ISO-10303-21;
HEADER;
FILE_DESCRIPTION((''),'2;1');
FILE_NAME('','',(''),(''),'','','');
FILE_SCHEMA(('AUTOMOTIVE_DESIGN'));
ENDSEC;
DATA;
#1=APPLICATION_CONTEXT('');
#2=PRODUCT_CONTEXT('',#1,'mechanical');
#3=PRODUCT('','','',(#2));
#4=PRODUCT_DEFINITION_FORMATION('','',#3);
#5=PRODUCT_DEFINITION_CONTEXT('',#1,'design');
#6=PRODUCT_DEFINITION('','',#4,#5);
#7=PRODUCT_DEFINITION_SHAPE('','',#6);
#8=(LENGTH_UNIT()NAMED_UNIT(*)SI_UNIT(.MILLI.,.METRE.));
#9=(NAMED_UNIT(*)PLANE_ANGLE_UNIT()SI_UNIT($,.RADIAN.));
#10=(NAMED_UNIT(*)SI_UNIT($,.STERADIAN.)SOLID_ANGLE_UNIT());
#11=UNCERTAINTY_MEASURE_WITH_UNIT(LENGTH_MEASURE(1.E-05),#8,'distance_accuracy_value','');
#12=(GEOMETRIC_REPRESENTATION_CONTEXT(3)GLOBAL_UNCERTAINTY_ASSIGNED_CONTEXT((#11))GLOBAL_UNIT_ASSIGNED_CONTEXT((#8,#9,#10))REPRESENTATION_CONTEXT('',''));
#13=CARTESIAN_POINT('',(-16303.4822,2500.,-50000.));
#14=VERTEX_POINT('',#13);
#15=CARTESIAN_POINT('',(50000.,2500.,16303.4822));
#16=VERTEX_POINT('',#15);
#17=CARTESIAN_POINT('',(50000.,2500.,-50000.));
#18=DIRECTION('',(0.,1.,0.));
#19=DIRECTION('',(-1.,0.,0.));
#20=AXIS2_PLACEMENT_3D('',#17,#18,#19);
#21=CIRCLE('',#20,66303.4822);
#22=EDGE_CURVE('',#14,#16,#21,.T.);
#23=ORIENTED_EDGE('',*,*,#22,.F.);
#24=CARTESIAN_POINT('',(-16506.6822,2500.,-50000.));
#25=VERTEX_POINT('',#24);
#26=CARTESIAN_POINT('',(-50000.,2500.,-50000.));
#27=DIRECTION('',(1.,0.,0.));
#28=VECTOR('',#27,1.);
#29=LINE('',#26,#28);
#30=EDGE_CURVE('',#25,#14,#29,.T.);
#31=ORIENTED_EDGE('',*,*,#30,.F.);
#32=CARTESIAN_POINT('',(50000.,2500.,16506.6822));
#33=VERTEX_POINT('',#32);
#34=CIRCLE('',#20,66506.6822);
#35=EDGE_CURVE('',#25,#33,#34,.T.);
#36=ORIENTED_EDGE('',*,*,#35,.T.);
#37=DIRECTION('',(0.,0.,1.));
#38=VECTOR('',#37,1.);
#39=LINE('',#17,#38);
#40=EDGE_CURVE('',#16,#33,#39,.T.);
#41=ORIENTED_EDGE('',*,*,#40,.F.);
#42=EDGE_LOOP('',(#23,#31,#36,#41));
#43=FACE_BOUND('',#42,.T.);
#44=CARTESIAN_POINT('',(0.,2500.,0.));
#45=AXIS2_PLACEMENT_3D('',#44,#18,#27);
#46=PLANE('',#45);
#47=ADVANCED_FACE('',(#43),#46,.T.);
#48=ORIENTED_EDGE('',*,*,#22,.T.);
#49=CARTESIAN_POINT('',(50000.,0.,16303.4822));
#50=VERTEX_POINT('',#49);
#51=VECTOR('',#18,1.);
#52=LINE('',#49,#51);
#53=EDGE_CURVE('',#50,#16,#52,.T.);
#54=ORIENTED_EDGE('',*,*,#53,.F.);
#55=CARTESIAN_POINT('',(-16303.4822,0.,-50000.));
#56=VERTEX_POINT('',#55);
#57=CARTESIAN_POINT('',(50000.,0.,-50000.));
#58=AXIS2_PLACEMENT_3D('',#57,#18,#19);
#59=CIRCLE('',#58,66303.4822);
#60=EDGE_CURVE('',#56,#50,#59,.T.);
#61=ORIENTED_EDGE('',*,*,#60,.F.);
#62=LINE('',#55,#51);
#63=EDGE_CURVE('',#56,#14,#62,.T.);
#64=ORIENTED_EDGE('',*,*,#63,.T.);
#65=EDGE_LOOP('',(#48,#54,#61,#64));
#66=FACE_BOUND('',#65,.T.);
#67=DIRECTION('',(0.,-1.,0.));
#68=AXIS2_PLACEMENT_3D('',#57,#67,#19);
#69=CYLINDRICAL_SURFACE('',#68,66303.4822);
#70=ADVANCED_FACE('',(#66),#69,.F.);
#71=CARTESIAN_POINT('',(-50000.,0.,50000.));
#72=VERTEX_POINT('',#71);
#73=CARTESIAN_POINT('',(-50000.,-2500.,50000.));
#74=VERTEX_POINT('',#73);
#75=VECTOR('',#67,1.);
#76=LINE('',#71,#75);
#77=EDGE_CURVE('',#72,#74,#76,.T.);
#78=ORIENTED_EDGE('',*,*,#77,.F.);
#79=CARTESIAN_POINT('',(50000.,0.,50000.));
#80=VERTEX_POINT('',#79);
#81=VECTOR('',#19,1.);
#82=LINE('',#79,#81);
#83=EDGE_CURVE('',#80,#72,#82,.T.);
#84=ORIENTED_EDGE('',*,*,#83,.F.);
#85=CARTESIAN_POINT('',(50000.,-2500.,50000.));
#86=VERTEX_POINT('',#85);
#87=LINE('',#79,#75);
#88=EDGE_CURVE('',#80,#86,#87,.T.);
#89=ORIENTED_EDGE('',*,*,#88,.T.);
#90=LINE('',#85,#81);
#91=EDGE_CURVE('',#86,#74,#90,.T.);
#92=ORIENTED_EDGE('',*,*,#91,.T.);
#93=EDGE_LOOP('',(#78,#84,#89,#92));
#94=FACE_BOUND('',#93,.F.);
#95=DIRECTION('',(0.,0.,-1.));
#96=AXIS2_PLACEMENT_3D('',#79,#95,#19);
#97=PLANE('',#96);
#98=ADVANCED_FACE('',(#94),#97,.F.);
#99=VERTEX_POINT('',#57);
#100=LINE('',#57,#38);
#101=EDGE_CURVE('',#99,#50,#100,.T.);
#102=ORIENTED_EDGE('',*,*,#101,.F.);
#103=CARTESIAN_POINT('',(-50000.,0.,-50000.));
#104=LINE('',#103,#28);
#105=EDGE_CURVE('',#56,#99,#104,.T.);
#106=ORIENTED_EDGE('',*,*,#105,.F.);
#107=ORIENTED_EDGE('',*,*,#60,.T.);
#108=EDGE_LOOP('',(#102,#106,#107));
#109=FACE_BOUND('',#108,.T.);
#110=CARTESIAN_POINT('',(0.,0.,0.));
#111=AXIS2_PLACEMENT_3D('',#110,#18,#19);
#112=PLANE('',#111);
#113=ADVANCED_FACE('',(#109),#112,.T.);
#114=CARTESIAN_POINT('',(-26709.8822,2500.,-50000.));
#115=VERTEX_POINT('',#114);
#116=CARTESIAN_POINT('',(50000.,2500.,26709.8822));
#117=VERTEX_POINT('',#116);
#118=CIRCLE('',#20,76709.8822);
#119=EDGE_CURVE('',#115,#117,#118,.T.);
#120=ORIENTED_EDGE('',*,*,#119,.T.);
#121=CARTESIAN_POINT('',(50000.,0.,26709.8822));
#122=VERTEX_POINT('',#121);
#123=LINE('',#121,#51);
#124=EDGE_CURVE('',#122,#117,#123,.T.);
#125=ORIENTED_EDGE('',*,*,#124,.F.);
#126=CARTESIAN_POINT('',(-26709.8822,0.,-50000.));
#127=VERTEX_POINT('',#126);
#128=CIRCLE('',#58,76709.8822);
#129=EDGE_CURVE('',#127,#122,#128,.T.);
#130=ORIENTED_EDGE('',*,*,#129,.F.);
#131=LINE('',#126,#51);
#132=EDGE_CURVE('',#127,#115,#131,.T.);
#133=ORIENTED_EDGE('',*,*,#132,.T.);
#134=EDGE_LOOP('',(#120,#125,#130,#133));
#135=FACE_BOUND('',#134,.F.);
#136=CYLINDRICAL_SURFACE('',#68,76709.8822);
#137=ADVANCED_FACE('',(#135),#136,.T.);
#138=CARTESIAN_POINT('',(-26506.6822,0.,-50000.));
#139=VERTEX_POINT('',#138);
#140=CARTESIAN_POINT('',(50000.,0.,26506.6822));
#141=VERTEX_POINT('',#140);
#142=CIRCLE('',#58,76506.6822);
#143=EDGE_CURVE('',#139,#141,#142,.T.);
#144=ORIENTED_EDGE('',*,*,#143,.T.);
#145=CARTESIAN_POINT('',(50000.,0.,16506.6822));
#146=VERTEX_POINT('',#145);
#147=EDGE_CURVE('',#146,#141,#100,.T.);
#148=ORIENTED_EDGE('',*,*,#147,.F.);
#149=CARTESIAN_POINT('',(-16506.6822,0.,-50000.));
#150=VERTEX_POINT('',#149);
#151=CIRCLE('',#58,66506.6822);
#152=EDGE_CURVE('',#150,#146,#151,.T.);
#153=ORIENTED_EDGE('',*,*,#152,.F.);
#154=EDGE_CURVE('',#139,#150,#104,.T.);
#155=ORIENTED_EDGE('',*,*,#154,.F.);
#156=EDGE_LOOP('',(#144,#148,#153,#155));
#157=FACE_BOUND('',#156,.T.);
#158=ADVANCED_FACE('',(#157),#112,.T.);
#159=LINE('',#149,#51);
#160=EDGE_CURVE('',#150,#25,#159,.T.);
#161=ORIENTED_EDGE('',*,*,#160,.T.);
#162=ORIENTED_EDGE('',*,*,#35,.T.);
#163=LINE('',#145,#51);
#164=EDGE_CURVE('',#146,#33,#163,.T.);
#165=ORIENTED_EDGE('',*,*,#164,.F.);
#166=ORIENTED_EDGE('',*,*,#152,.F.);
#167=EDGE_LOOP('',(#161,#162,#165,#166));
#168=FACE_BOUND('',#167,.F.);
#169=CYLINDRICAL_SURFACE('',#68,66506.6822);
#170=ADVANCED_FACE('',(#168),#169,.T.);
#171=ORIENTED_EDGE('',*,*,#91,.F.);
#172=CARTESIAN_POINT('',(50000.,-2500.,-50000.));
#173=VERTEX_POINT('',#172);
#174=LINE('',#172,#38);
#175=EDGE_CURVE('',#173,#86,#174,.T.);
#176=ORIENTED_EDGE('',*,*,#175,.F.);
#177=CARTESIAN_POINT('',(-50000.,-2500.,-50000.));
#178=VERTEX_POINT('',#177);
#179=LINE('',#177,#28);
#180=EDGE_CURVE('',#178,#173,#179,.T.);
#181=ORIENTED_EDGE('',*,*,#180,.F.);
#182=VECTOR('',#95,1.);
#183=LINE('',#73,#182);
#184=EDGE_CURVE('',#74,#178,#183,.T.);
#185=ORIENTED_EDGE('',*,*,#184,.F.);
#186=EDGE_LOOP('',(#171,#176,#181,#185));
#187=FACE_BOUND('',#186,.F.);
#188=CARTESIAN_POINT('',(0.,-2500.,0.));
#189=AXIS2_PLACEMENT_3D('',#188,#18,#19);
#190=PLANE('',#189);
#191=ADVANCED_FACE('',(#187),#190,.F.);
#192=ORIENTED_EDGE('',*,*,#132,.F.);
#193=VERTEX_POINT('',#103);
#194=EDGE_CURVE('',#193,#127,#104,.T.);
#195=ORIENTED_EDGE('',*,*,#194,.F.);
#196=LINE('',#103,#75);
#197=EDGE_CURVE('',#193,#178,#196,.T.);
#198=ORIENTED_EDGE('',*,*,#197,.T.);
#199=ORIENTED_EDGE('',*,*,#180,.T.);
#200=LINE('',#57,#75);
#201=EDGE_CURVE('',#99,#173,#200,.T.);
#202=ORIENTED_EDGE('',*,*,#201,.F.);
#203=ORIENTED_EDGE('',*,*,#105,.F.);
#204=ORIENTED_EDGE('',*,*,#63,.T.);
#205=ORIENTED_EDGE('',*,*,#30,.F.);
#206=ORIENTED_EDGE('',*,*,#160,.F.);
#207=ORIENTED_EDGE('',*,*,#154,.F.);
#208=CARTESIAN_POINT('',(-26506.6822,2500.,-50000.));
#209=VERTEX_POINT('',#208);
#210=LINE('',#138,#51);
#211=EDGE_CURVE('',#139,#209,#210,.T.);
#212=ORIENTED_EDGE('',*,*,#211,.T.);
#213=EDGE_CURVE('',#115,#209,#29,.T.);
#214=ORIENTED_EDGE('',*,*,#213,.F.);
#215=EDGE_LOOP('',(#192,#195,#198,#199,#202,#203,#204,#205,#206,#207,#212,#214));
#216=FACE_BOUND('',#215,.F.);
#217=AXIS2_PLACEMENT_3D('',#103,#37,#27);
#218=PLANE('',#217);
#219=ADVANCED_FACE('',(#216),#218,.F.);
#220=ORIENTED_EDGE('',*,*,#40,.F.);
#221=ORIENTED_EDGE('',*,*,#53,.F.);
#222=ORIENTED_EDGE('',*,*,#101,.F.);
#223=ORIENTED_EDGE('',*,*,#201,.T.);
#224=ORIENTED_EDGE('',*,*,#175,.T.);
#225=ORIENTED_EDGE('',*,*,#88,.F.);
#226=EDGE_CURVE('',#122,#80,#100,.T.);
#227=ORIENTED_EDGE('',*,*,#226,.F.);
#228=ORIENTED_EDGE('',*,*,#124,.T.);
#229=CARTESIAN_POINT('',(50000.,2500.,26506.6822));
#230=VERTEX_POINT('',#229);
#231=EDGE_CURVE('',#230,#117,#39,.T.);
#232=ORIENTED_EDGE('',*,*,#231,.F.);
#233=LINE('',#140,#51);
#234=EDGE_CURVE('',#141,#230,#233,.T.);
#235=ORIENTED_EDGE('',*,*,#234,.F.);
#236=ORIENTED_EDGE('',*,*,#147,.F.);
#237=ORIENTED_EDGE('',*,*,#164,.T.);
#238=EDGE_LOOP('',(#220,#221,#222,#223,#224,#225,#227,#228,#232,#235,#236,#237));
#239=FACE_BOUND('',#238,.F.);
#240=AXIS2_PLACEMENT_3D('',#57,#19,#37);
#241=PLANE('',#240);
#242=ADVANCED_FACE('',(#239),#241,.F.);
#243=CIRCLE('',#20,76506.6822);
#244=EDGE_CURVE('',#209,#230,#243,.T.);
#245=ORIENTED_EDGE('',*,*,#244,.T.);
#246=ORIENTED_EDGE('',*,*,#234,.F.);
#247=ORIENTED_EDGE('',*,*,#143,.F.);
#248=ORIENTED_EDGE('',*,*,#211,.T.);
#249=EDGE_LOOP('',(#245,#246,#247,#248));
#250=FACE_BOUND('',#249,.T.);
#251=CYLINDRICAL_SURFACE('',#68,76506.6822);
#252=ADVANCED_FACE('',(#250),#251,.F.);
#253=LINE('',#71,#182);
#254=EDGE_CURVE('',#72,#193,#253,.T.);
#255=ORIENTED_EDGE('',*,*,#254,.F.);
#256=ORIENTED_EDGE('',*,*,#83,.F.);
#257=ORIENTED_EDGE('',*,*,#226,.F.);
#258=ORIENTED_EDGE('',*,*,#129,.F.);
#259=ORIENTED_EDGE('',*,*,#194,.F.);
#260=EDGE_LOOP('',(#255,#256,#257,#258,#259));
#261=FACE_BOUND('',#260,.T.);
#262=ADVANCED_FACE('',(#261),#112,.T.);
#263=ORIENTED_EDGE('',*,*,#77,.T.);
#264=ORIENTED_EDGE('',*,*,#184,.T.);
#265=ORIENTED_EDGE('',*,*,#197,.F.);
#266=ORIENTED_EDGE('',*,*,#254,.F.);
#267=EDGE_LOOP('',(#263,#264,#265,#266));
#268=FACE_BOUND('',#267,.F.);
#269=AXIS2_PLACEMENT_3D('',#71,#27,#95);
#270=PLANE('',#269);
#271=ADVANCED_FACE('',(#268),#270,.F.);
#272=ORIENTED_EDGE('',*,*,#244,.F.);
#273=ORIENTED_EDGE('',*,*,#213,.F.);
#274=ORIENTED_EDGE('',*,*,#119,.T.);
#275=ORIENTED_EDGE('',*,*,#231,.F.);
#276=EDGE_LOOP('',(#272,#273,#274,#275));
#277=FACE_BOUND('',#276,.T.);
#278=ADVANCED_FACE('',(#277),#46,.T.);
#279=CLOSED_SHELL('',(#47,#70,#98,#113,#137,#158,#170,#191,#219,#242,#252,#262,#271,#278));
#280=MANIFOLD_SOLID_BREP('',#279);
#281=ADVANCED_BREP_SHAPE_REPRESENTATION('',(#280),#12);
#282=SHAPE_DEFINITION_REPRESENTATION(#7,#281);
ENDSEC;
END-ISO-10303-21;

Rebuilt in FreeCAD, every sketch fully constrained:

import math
import FreeCAD as App
import Part
import Sketcher
Q = App.Units.Quantity


def add_polygon(sketch, points):
    """Adds a closed chain of lines whose ends are joined by coincident constraints."""
    first, n = sketch.GeometryCount, len(points)
    for a, b in zip(points, points[1:] + points[:1]):
        sketch.addGeometry(Part.LineSegment(App.Vector(*a, 0), App.Vector(*b, 0)), False)
    for i in range(n):
        sketch.addConstraint(Sketcher.Constraint("Coincident", first + i, 2, first + (i + 1) % n, 1))

doc = App.newDocument("Part")
body = doc.addObject("PartDesign::Body", "Body")

# Sketch on XZ plane
sketch1 = body.newObject("Sketcher::SketchObject", "Sketch")
sketch1.AttachmentSupport = (doc.getObject("XZ_Plane"), [""])
sketch1.MapMode = "FlatFace"
add_polygon(sketch1, [(-50000, 50000), (50000, 50000), (50000, -50000), (-50000, -50000)])  # lines 0-3
sketch1.addConstraint([
    Sketcher.Constraint("Horizontal", 0),
    Sketcher.Constraint("Vertical", 1),
    Sketcher.Constraint("Horizontal", 2),
    Sketcher.Constraint("Vertical", 3),
    Sketcher.Constraint("Symmetric", 0, 2, 2, 2, -1, 1),
    Sketcher.Constraint("Equal", 2, 1),
    Sketcher.Constraint("DistanceX", 0, 1, 0, 2, Q("100000 mm")),
])
pad1 = body.newObject("PartDesign::Pad", "Pad")
pad1.Profile = sketch1
pad1.Length = 2500

# Sketch on XZ plane
sketch2 = body.newObject("Sketcher::SketchObject", "Sketch001")
sketch2.AttachmentSupport = (doc.getObject("XZ_Plane"), [""])
sketch2.MapMode = "FlatFace"
sketch2.addGeometry([
    Part.LineSegment(App.Vector(-26507, -50000, 0), App.Vector(-26710, -50000, 0)),  # 0
    Part.ArcOfCircle(Part.Circle(App.Vector(50000, -50000, 0), App.Vector(0, 0, 1), 76710), math.radians(90), math.radians(180)),  # 1
    Part.LineSegment(App.Vector(50000, 26710, 0), App.Vector(50000, 26507, 0)),  # 2
    Part.ArcOfCircle(Part.Circle(App.Vector(50000, -50000, 0), App.Vector(0, 0, 1), 76507), math.radians(90), math.radians(180)),  # 3
    Part.LineSegment(App.Vector(-16303, -50000, 0), App.Vector(-16507, -50000, 0)),  # 4
    Part.ArcOfCircle(Part.Circle(App.Vector(50000, -50000, 0), App.Vector(0, 0, 1), 66507), math.radians(90), math.radians(180)),  # 5
    Part.LineSegment(App.Vector(50000, 16507, 0), App.Vector(50000, 16303, 0)),  # 6
    Part.ArcOfCircle(Part.Circle(App.Vector(50000, -50000, 0), App.Vector(0, 0, 1), 66303), math.radians(90), math.radians(180)),  # 7
], False)
sketch2.addConstraint([
    Sketcher.Constraint("Coincident", 0, 2, 1, 2),
    Sketcher.Constraint("Coincident", 1, 1, 2, 1),
    Sketcher.Constraint("Coincident", 2, 2, 3, 1),
    Sketcher.Constraint("Coincident", 3, 2, 0, 1),
    Sketcher.Constraint("Coincident", 4, 2, 5, 2),
    Sketcher.Constraint("Coincident", 5, 1, 6, 1),
    Sketcher.Constraint("Coincident", 6, 2, 7, 1),
    Sketcher.Constraint("Coincident", 7, 2, 4, 1),
    Sketcher.Constraint("Horizontal", 0),
    Sketcher.Constraint("Vertical", 2),
    Sketcher.Constraint("Horizontal", 4),
    Sketcher.Constraint("Vertical", 6),
    Sketcher.Constraint("Coincident", 3, 3, 1, 3),
    Sketcher.Constraint("Coincident", 5, 3, 1, 3),
    Sketcher.Constraint("Coincident", 7, 3, 1, 3),
    Sketcher.Constraint("Horizontal", 7, 3, 0, 2),
    Sketcher.Constraint("Equal", 0, 4),
    Sketcher.Constraint("DistanceX", 0, 2, 0, 1, Q("203.2 mm")),
    Sketcher.Constraint("DistanceX", 3, 2, 4, 2, Q("10000 mm")),
    Sketcher.Constraint("DistanceX", -1, 1, 1, 3, Q("50000 mm")),
    Sketcher.Constraint("DistanceY", 1, 3, -1, 1, Q("50000 mm")),
    Sketcher.Constraint("DistanceX", -1, 1, 2, 2, Q("50000 mm")),
    Sketcher.Constraint("DistanceY", 4, 2, -1, 1, Q("50000 mm")),
    Sketcher.Constraint("DistanceX", -1, 1, 6, 2, Q("50000 mm")),
    Sketcher.Constraint("Radius", 1, Q("76709.8822 mm")),
])
pad2 = body.newObject("PartDesign::Pad", "Pad001")
pad2.Profile = sketch2
pad2.Length = 2500
pad2.Reversed = True

doc.recompute()
